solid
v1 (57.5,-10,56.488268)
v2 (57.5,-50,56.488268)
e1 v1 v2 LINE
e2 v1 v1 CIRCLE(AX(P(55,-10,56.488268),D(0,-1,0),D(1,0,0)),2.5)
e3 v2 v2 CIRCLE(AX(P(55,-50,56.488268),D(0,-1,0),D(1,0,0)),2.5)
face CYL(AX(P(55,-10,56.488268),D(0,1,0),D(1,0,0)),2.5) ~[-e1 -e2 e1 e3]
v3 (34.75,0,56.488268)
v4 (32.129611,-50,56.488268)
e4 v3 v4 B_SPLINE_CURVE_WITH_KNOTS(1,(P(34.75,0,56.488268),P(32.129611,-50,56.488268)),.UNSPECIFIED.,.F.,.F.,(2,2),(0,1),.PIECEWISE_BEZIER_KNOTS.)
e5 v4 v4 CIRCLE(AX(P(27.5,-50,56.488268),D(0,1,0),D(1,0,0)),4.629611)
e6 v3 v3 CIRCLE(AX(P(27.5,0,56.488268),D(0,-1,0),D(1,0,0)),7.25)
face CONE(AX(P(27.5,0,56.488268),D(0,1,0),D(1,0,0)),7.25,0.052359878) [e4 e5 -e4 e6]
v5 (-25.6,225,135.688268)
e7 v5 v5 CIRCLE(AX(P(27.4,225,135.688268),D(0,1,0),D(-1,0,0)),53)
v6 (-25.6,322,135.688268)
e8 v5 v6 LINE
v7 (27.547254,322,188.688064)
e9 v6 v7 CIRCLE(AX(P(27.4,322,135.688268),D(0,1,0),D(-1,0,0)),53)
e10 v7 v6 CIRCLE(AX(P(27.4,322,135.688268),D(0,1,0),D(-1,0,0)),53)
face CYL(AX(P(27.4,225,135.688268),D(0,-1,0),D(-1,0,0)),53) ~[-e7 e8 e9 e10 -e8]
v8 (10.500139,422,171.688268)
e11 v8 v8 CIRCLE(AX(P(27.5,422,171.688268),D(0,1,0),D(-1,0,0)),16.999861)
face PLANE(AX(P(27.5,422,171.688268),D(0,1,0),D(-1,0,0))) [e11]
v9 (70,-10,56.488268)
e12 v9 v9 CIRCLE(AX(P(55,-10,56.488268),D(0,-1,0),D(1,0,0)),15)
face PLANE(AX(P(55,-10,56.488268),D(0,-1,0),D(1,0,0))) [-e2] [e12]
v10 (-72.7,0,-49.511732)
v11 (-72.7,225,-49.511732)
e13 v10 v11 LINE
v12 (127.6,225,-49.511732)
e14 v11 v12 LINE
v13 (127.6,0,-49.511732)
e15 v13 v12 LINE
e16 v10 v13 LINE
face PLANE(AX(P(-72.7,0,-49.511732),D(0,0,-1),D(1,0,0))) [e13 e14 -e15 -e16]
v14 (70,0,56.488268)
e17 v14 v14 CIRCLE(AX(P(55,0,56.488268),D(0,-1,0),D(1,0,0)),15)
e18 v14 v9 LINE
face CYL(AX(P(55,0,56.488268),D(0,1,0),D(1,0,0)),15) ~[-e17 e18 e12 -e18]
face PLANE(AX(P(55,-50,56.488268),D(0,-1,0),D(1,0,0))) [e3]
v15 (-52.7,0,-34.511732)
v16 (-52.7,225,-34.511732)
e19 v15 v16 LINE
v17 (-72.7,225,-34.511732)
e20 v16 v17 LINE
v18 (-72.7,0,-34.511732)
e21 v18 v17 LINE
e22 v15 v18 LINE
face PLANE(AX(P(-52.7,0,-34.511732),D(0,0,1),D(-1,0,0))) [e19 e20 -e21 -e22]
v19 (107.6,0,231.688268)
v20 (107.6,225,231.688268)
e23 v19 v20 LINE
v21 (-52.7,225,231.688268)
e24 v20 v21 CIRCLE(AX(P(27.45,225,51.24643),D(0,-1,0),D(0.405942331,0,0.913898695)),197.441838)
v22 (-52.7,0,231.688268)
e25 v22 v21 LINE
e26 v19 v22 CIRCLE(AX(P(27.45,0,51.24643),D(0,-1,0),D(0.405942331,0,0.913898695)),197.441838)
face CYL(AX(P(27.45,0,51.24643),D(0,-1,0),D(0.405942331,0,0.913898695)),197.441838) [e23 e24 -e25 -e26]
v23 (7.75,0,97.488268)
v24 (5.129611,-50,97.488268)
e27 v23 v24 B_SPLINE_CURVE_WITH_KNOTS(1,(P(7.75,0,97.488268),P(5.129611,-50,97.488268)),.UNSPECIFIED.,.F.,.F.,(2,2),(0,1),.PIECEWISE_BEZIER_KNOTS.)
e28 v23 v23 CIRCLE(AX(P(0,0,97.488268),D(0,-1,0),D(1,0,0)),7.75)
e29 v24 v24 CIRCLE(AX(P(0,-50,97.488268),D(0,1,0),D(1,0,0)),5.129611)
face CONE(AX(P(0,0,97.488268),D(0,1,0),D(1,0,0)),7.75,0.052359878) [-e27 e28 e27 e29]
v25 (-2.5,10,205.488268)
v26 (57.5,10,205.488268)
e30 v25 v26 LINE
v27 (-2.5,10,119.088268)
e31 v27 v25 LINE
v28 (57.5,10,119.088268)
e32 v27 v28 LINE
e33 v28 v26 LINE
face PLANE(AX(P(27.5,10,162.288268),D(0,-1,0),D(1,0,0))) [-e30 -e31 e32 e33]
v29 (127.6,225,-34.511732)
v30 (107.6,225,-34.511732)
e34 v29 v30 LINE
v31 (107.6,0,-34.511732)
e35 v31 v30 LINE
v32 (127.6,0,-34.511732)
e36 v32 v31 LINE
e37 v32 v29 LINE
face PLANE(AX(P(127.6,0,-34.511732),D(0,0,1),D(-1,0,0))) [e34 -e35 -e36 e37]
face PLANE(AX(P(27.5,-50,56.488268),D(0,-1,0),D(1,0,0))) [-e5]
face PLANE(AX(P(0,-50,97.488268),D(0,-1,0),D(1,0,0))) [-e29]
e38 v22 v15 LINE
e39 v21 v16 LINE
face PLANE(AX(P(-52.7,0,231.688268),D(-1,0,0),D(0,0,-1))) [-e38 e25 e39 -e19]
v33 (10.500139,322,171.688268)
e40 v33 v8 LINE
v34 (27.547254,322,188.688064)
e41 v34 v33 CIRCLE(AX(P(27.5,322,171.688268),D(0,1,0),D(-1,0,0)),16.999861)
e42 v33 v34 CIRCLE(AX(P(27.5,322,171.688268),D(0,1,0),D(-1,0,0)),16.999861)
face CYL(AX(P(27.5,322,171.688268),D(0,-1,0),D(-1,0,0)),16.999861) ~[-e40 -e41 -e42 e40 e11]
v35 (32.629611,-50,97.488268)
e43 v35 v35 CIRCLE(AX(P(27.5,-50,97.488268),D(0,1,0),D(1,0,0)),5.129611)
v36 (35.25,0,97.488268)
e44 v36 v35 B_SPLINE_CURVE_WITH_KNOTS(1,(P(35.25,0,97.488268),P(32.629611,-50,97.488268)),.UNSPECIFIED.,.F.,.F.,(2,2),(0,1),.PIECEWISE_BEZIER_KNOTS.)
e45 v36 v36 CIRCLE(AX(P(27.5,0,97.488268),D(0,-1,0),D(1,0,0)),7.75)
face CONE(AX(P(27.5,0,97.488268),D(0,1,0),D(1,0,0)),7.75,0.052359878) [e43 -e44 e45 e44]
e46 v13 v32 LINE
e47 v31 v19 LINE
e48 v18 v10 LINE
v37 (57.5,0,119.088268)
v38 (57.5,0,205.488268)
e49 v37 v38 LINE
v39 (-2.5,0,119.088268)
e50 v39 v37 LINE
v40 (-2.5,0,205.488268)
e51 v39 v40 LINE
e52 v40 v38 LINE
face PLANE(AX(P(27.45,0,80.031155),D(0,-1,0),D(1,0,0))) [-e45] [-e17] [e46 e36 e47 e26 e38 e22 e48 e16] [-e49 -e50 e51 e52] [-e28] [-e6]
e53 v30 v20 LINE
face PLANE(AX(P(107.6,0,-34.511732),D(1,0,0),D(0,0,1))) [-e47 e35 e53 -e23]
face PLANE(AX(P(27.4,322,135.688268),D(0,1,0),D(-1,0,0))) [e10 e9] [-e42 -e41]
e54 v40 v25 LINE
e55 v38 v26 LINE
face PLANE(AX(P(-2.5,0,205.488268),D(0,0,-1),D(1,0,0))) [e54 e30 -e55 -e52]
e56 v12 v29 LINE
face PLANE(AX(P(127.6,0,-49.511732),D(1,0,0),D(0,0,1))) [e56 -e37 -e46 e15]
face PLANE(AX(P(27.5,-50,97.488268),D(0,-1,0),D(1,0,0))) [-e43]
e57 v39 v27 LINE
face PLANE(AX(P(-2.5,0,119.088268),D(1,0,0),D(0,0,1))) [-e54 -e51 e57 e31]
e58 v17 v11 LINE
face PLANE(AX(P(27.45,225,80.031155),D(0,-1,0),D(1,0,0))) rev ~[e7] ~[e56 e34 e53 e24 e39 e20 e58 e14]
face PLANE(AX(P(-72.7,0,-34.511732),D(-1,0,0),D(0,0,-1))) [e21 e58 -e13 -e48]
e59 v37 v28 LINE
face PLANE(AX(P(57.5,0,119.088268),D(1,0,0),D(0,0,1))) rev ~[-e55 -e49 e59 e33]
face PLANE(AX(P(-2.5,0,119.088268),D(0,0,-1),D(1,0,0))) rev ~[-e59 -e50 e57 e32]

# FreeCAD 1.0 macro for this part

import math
import FreeCAD as App
import Part
import Sketcher
Q = App.Units.Quantity


def add_polygon(sketch, points):
    """Adds a closed chain of lines whose ends are joined by coincident constraints."""
    first, n = sketch.GeometryCount, len(points)
    for a, b in zip(points, points[1:] + points[:1]):
        sketch.addGeometry(Part.LineSegment(App.Vector(*a, 0), App.Vector(*b, 0)), False)
    for i in range(n):
        sketch.addConstraint(Sketcher.Constraint("Coincident", first + i, 2, first + (i + 1) % n, 1))

doc = App.newDocument("Part")
body = doc.addObject("PartDesign::Body", "Body")

# Sketch on XZ plane
sketch1 = body.newObject("Sketcher::SketchObject", "Sketch")
sketch1.AttachmentSupport = (doc.getObject("XZ_Plane"), [""])
sketch1.MapMode = "FlatFace"
sketch1.addGeometry(Part.LineSegment(App.Vector(-72.7, -34.511732, 0), App.Vector(-72.7, -49.511732, 0)), False)
sketch1.addGeometry(Part.LineSegment(App.Vector(-72.7, -49.511732, 0), App.Vector(127.6, -49.511732, 0)), False)
sketch1.addGeometry(Part.LineSegment(App.Vector(127.6, -49.511732, 0), App.Vector(127.6, -34.511732, 0)), False)
sketch1.addGeometry(Part.LineSegment(App.Vector(127.6, -34.511732, 0), App.Vector(107.6, -34.511732, 0)), False)
sketch1.addGeometry(Part.LineSegment(App.Vector(107.6, -34.511732, 0), App.Vector(107.6, 231.688268, 0)), False)
sketch1.addGeometry(Part.ArcOfCircle(Part.Circle(App.Vector(27.45, 51.24643, 0), App.Vector(0, 0, 1), 197.441838), math.radians(66.049808), math.radians(113.950192)), False)
sketch1.addGeometry(Part.LineSegment(App.Vector(-52.7, 231.688268, 0), App.Vector(-52.7, -34.511732, 0)), False)
sketch1.addGeometry(Part.LineSegment(App.Vector(-52.7, -34.511732, 0), App.Vector(-72.7, -34.511732, 0)), False)
sketch1.addConstraint(Sketcher.Constraint("Coincident", 0, 2, 1, 1))
sketch1.addConstraint(Sketcher.Constraint("Coincident", 1, 2, 2, 1))
sketch1.addConstraint(Sketcher.Constraint("Coincident", 2, 2, 3, 1))
sketch1.addConstraint(Sketcher.Constraint("Coincident", 3, 2, 4, 1))
sketch1.addConstraint(Sketcher.Constraint("Coincident", 4, 2, 5, 1))
sketch1.addConstraint(Sketcher.Constraint("Coincident", 5, 2, 6, 1))
sketch1.addConstraint(Sketcher.Constraint("Coincident", 6, 2, 7, 1))
sketch1.addConstraint(Sketcher.Constraint("Coincident", 7, 2, 0, 1))
sketch1.addConstraint(Sketcher.Constraint("Vertical", 0))
sketch1.addConstraint(Sketcher.Constraint("Horizontal", 1))
sketch1.addConstraint(Sketcher.Constraint("Vertical", 2))
sketch1.addConstraint(Sketcher.Constraint("Horizontal", 3))
sketch1.addConstraint(Sketcher.Constraint("Vertical", 4))
sketch1.addConstraint(Sketcher.Constraint("Vertical", 6))
sketch1.addConstraint(Sketcher.Constraint("Horizontal", 7))
sketch1.addConstraint(Sketcher.Constraint("Horizontal", 4, 2, 5, 2))
sketch1.addConstraint(Sketcher.Constraint("Horizontal", 3, 2, 6, 2))
sketch1.addConstraint(Sketcher.Constraint("Equal", 3, 7))
sketch1.addConstraint(Sketcher.Constraint("DistanceX", 3, 2, 3, 1, Q("20 mm")))
sketch1.addConstraint(Sketcher.Constraint("DistanceY", 0, 2, 0, 1, Q("15 mm")))
sketch1.addConstraint(Sketcher.Constraint("DistanceX", 1, 1, 1, 2, Q("200.3 mm")))
sketch1.addConstraint(Sketcher.Constraint("DistanceY", 4, 1, 4, 2, Q("266.2 mm")))
sketch1.addConstraint(Sketcher.Constraint("DistanceX", 0, 2, -1, 1, Q("72.7 mm")))
sketch1.addConstraint(Sketcher.Constraint("Radius", 5, Q("197.441838 mm")))
sketch1.addConstraint(Sketcher.Constraint("DistanceY", -1, 1, 5, 3, Q("51.24643 mm")))
pad1 = body.newObject("PartDesign::Pad", "Pad")
pad1.Profile = sketch1
pad1.Length = 225
pad1.Reversed = True

# Sketch on XZ plane
sketch2 = body.newObject("Sketcher::SketchObject", "Sketch001")
sketch2.AttachmentSupport = (doc.getObject("XZ_Plane"), [""])
sketch2.MapMode = "FlatFace"
sketch2.addGeometry(Part.Circle(App.Vector(0, 97.488268, 0), App.Vector(0, 0, 1), 7.75), False)
sketch2.addGeometry(Part.Circle(App.Vector(27.5, 97.488268, 0), App.Vector(0, 0, 1), 7.75), False)
sketch2.addConstraint(Sketcher.Constraint("Equal", 0, 1))
sketch2.addConstraint(Sketcher.Constraint("PointOnObject", 0, 3, -2))
sketch2.addConstraint(Sketcher.Constraint("Horizontal", 0, 3, 1, 3))
sketch2.addConstraint(Sketcher.Constraint("Diameter", 0, Q("15.5 mm")))
sketch2.addConstraint(Sketcher.Constraint("DistanceX", -1, 1, 1, 3, Q("27.5 mm")))
sketch2.addConstraint(Sketcher.Constraint("DistanceY", -1, 1, 0, 3, Q("97.488268 mm")))
pad2 = body.newObject("PartDesign::Pad", "Pad001")
pad2.Profile = sketch2
pad2.Length = 50
pad2.TaperAngle = -3

# Sketch on XZ plane
sketch3 = body.newObject("Sketcher::SketchObject", "Sketch002")
sketch3.AttachmentSupport = (doc.getObject("XZ_Plane"), [""])
sketch3.MapMode = "FlatFace"
sketch3.addGeometry(Part.Circle(App.Vector(27.5, 56.488268, 0), App.Vector(0, 0, 1), 7.25), False)
sketch3.addConstraint(Sketcher.Constraint("Diameter", 0, Q("14.5 mm")))
sketch3.addConstraint(Sketcher.Constraint("DistanceX", -1, 1, 0, 3, Q("27.5 mm")))
sketch3.addConstraint(Sketcher.Constraint("DistanceY", -1, 1, 0, 3, Q("56.488268 mm")))
pad3 = body.newObject("PartDesign::Pad", "Pad002")
pad3.Profile = sketch3
pad3.Length = 50
pad3.TaperAngle = -3

# Sketch on XZ plane
sketch4 = body.newObject("Sketcher::SketchObject", "Sketch003")
sketch4.AttachmentSupport = (doc.getObject("XZ_Plane"), [""])
sketch4.MapMode = "FlatFace"
add_polygon(sketch4, [(-2.5, 205.488268), (-2.5, 119.088268), (57.5, 119.088268), (57.5, 205.488268)])  # lines 0-3
sketch4.addConstraint(Sketcher.Constraint("Vertical", 0))
sketch4.addConstraint(Sketcher.Constraint("Horizontal", 1))
sketch4.addConstraint(Sketcher.Constraint("Vertical", 2))
sketch4.addConstraint(Sketcher.Constraint("Horizontal", 3))
sketch4.addConstraint(Sketcher.Constraint("DistanceX", 1, 1, 1, 2, Q("60 mm")))
sketch4.addConstraint(Sketcher.Constraint("DistanceY", 0, 2, 0, 1, Q("86.4 mm")))
sketch4.addConstraint(Sketcher.Constraint("DistanceX", 0, 2, -1, 1, Q("2.5 mm")))
sketch4.addConstraint(Sketcher.Constraint("DistanceY", -1, 1, 0, 2, Q("119.088268 mm")))
pocket1 = body.newObject("PartDesign::Pocket", "Pocket")
pocket1.Profile = sketch4
pocket1.Length = 10

# Sketch on XZ plane
sketch5 = body.newObject("Sketcher::SketchObject", "Sketch004")
sketch5.AttachmentSupport = (doc.getObject("XZ_Plane"), [""])
sketch5.MapMode = "FlatFace"
sketch5.addGeometry(Part.Circle(App.Vector(55, 56.488268, 0), App.Vector(0, 0, 1), 15), False)
sketch5.addConstraint(Sketcher.Constraint("Diameter", 0, Q("30 mm")))
sketch5.addConstraint(Sketcher.Constraint("DistanceX", -1, 1, 0, 3, Q("55 mm")))
sketch5.addConstraint(Sketcher.Constraint("DistanceY", -1, 1, 0, 3, Q("56.488268 mm")))
pad4 = body.newObject("PartDesign::Pad", "Pad003")
pad4.Profile = sketch5
pad4.Length = 10

# Sketch on XZ plane
sketch6 = body.newObject("Sketcher::SketchObject", "Sketch005")
sketch6.AttachmentSupport = (doc.getObject("XZ_Plane"), [""])
sketch6.MapMode = "FlatFace"
sketch6.AttachmentOffset = App.Placement(App.Vector(0, 0, 10), App.Rotation())
sketch6.addGeometry(Part.Circle(App.Vector(55, 56.488268, 0), App.Vector(0, 0, 1), 2.5), False)
sketch6.addConstraint(Sketcher.Constraint("Diameter", 0, Q("5 mm")))
sketch6.addConstraint(Sketcher.Constraint("DistanceX", -1, 1, 0, 3, Q("55 mm")))
sketch6.addConstraint(Sketcher.Constraint("DistanceY", -1, 1, 0, 3, Q("56.488268 mm")))
pad5 = body.newObject("PartDesign::Pad", "Pad004")
pad5.Profile = sketch6
pad5.Length = 40

# Sketch on XZ plane
sketch7 = body.newObject("Sketcher::SketchObject", "Sketch006")
sketch7.AttachmentSupport = (doc.getObject("XZ_Plane"), [""])
sketch7.MapMode = "FlatFace"
sketch7.AttachmentOffset = App.Placement(App.Vector(0, 0, -225), App.Rotation())
sketch7.addGeometry(Part.Circle(App.Vector(27.4, 135.688268, 0), App.Vector(0, 0, 1), 53), False)
sketch7.addConstraint(Sketcher.Constraint("Diameter", 0, Q("106 mm")))
sketch7.addConstraint(Sketcher.Constraint("DistanceX", -1, 1, 0, 3, Q("27.4 mm")))
sketch7.addConstraint(Sketcher.Constraint("DistanceY", -1, 1, 0, 3, Q("135.688268 mm")))
pad6 = body.newObject("PartDesign::Pad", "Pad005")
pad6.Profile = sketch7
pad6.Length = 97
pad6.Reversed = True

# Sketch on XZ plane
sketch8 = body.newObject("Sketcher::SketchObject", "Sketch007")
sketch8.AttachmentSupport = (doc.getObject("XZ_Plane"), [""])
sketch8.MapMode = "FlatFace"
sketch8.AttachmentOffset = App.Placement(App.Vector(0, 0, -322), App.Rotation())
sketch8.addGeometry(Part.Circle(App.Vector(27.5, 171.688268, 0), App.Vector(0, 0, 1), 16.999861), False)
sketch8.addConstraint(Sketcher.Constraint("DistanceX", -1, 1, 0, 3, Q("27.5 mm")))
sketch8.addConstraint(Sketcher.Constraint("Diameter", 0, Q("33.999722 mm")))
sketch8.addConstraint(Sketcher.Constraint("DistanceY", -1, 1, 0, 3, Q("171.688268 mm")))
pad7 = body.newObject("PartDesign::Pad", "Pad006")
pad7.Profile = sketch8
pad7.Length = 100
pad7.Reversed = True

doc.recompute()
